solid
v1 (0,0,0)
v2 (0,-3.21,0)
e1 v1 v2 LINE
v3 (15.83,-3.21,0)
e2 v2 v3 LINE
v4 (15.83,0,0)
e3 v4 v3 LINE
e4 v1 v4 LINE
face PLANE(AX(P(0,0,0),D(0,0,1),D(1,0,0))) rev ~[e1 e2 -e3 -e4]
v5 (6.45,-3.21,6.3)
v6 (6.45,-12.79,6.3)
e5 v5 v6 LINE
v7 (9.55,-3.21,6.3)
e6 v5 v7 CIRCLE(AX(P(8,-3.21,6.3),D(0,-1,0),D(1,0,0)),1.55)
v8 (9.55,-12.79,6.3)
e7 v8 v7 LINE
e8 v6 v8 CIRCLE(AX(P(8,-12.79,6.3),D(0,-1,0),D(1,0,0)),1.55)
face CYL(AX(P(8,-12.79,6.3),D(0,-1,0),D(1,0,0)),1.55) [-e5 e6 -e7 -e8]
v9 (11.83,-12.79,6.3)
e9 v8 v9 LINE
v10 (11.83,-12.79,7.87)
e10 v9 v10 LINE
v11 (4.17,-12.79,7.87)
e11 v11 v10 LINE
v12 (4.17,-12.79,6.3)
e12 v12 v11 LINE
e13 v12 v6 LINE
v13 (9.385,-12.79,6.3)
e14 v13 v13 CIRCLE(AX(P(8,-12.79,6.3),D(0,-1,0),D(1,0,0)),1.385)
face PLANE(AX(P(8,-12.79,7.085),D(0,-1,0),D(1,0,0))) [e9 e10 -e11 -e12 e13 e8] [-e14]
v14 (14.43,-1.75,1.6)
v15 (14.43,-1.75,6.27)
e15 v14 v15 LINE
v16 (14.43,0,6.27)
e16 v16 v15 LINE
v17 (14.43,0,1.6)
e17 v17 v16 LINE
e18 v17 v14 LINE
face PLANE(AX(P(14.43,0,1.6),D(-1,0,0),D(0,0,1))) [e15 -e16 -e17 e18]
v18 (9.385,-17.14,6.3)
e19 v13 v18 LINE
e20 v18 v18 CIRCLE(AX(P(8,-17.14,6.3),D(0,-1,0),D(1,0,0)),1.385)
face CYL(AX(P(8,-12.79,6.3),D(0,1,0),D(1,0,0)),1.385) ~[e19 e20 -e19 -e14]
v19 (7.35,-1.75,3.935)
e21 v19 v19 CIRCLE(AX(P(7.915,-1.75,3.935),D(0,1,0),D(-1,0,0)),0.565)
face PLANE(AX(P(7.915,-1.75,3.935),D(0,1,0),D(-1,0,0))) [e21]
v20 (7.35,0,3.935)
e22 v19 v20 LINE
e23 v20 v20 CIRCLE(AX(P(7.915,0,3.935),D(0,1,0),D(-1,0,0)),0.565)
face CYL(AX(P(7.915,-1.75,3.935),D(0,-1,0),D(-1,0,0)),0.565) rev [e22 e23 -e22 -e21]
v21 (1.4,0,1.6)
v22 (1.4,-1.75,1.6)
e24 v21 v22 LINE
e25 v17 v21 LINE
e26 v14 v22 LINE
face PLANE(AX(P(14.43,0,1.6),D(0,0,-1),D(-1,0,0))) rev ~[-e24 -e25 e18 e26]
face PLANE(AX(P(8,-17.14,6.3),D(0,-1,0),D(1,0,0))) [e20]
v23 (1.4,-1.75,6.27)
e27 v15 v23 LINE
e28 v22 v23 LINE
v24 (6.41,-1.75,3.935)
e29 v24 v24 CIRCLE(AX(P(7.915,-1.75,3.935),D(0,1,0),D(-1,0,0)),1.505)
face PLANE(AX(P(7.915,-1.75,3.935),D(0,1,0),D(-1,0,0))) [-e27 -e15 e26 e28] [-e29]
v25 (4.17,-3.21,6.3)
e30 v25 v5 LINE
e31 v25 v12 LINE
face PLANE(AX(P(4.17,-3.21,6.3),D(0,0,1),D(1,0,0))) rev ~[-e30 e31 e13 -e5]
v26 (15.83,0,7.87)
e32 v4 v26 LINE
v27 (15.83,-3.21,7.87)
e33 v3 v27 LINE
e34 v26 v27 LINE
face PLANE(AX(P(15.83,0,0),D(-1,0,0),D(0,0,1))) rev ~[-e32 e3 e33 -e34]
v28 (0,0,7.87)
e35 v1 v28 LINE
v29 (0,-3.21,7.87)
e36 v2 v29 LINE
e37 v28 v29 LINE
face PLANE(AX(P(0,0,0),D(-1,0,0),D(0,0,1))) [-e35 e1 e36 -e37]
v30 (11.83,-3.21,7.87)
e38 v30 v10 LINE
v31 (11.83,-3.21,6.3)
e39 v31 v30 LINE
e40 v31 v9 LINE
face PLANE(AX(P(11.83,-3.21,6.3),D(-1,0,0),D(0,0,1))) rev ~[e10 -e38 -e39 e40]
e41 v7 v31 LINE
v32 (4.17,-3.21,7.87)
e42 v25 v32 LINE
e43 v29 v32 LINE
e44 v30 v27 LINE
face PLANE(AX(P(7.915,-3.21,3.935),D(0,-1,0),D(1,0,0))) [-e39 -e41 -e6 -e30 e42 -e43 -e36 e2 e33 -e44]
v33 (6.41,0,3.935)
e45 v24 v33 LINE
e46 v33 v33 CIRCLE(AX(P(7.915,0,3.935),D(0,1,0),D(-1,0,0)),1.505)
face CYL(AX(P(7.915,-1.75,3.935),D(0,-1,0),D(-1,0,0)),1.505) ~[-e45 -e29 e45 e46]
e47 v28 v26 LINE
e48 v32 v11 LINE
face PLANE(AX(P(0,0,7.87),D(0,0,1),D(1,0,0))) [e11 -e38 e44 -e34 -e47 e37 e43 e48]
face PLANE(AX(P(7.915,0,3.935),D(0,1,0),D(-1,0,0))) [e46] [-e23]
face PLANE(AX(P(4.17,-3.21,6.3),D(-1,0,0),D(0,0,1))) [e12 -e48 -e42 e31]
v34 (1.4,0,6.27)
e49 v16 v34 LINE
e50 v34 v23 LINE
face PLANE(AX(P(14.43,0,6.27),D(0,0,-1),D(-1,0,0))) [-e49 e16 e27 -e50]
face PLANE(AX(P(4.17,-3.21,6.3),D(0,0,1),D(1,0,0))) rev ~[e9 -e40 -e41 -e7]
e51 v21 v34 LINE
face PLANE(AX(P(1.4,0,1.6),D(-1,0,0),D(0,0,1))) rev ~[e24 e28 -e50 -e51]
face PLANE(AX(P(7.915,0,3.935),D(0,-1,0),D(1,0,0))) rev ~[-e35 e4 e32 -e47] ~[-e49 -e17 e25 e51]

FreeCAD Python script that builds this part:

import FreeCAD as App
import Part
import Sketcher
from FreeCAD import Vector
Q = App.Units.Quantity


def add_polygon(sketch, points):
    """Adds a closed chain of lines whose ends are joined by coincident constraints."""
    first, n = sketch.GeometryCount, len(points)
    for a, b in zip(points, points[1:] + points[:1]):
        sketch.addGeometry(Part.LineSegment(App.Vector(*a, 0), App.Vector(*b, 0)), False)
    for i in range(n):
        sketch.addConstraint(Sketcher.Constraint("Coincident", first + i, 2, first + (i + 1) % n, 1))

doc = App.newDocument("Part")
body = doc.addObject("PartDesign::Body", "Body")

# Sketch on XZ plane
sketch1 = body.newObject("Sketcher::SketchObject", "Sketch")
sketch1.AttachmentSupport = (doc.getObject("XZ_Plane"), [""])
sketch1.MapMode = "FlatFace"
add_polygon(sketch1, [(0, 8), (0, 0), (16, 0), (16, 8)])  # lines 0-3
sketch1.addConstraint([
    Sketcher.Constraint("Vertical", 0),
    Sketcher.Constraint("Horizontal", 1),
    Sketcher.Constraint("Vertical", 2),
    Sketcher.Constraint("Horizontal", 3),
    Sketcher.Constraint("Coincident", 0, 2, -1, 1),
    Sketcher.Constraint("DistanceX", 1, 1, 1, 2, Q("15.83 mm")),
    Sketcher.Constraint("DistanceY", 0, 2, 0, 1, Q("7.87 mm")),
])
pad1 = body.newObject("PartDesign::Pad", "Pad")
pad1.Profile = sketch1
pad1.Length = 3.21

# Sketch on XZ plane
sketch2 = body.newObject("Sketcher::SketchObject", "Sketch001")
sketch2.AttachmentSupport = (doc.getObject("XZ_Plane"), [""])
sketch2.MapMode = "FlatFace"
add_polygon(sketch2, [(14.4, 6.3), (14.4, 1.6), (1.4, 1.6), (1.4, 6.3)])  # lines 0-3
sketch2.addConstraint([
    Sketcher.Constraint("Vertical", 0),
    Sketcher.Constraint("Horizontal", 1),
    Sketcher.Constraint("Vertical", 2),
    Sketcher.Constraint("Horizontal", 3),
    Sketcher.Constraint("DistanceX", 1, 2, 1, 1, Q("13.03 mm")),
    Sketcher.Constraint("DistanceY", 0, 2, 0, 1, Q("4.67 mm")),
    Sketcher.Constraint("DistanceY", -1, 1, 0, 2, Q("1.6 mm")),
    Sketcher.Constraint("DistanceX", -1, 1, 1, 2, Q("1.4 mm")),
])
pocket1 = body.newObject("PartDesign::Pocket", "Pocket")
pocket1.Profile = sketch2
pocket1.Length = 1.75
pocket1.Reversed = True

# Sketch on XZ plane
sketch3 = body.newObject("Sketcher::SketchObject", "Sketch002")
sketch3.AttachmentSupport = (doc.getObject("XZ_Plane"), [""])
sketch3.MapMode = "FlatFace"
sketch3.AttachmentOffset = App.Placement(Vector(0, 0, 1.75), App.Rotation())
sketch3.addGeometry([
    Part.Circle(Vector(7.9, 3.9, 0), Vector(0, 0, 1), 1.5),
    Part.Circle(Vector(7.9, 3.9, 0), Vector(0, 0, 1), 0.6),
], False)
sketch3.addConstraint([
    Sketcher.Constraint("Coincident", 1, 3, 0, 3),
    Sketcher.Constraint("Diameter", 0, Q("3.01 mm")),
    Sketcher.Constraint("Diameter", 1, Q("1.13 mm")),
    Sketcher.Constraint("DistanceX", -1, 1, 0, 3, Q("7.915 mm")),
    Sketcher.Constraint("DistanceY", -1, 1, 0, 3, Q("3.935 mm")),
])
pad2 = body.newObject("PartDesign::Pad", "Pad001")
pad2.Profile = sketch3
pad2.Length = 1.75
pad2.Reversed = True

# Sketch on XZ plane
sketch4 = body.newObject("Sketcher::SketchObject", "Sketch003")
sketch4.AttachmentSupport = (doc.getObject("XZ_Plane"), [""])
sketch4.MapMode = "FlatFace"
sketch4.AttachmentOffset = App.Placement(Vector(0, 0, 3.21), App.Rotation())
add_polygon(sketch4, [(4.2, 7.9), (4.2, 6.3), (11.8, 6.3), (11.8, 7.9)])  # lines 0-3
sketch4.addConstraint([
    Sketcher.Constraint("Vertical", 0),
    Sketcher.Constraint("Horizontal", 1),
    Sketcher.Constraint("Vertical", 2),
    Sketcher.Constraint("Horizontal", 3),
    Sketcher.Constraint("DistanceX", 1, 1, 1, 2, Q("7.66 mm")),
    Sketcher.Constraint("DistanceY", 0, 2, 0, 1, Q("1.57 mm")),
    Sketcher.Constraint("DistanceY", -1, 1, 0, 2, Q("6.3 mm")),
    Sketcher.Constraint("DistanceX", -1, 1, 0, 2, Q("4.17 mm")),
])
pad3 = body.newObject("PartDesign::Pad", "Pad002")
pad3.Profile = sketch4
pad3.Length = 9.58

# Sketch on XZ plane
sketch5 = body.newObject("Sketcher::SketchObject", "Sketch004")
sketch5.AttachmentSupport = (doc.getObject("XZ_Plane"), [""])
sketch5.MapMode = "FlatFace"
sketch5.AttachmentOffset = App.Placement(Vector(0, 0, 12.79), App.Rotation())
sketch5.addGeometry(Part.Circle(Vector(8, 6.3, 0), Vector(0, 0, 1), 1.6), False)
sketch5.addConstraint([
    Sketcher.Constraint("Diameter", 0, Q("3.1 mm")),
    Sketcher.Constraint("DistanceX", -1, 1, 0, 3, Q("8 mm")),
    Sketcher.Constraint("DistanceY", -1, 1, 0, 3, Q("6.3 mm")),
])
pad4 = body.newObject("PartDesign::Pad", "Pad003")
pad4.Profile = sketch5
pad4.Length = 9.58
pad4.Reversed = True

# Sketch on XZ plane
sketch6 = body.newObject("Sketcher::SketchObject", "Sketch005")
sketch6.AttachmentSupport = (doc.getObject("XZ_Plane"), [""])
sketch6.MapMode = "FlatFace"
sketch6.AttachmentOffset = App.Placement(Vector(0, 0, 12.79), App.Rotation())
sketch6.addGeometry(Part.Circle(Vector(8, 6.3, 0), Vector(0, 0, 1), 1.4), False)
sketch6.addConstraint([
    Sketcher.Constraint("Diameter", 0, Q("2.77 mm")),
    Sketcher.Constraint("DistanceX", -1, 1, 0, 3, Q("8 mm")),
    Sketcher.Constraint("DistanceY", -1, 1, 0, 3, Q("6.3 mm")),
])
pad5 = body.newObject("PartDesign::Pad", "Pad004")
pad5.Profile = sketch6
pad5.Length = 4.35

doc.recompute()
